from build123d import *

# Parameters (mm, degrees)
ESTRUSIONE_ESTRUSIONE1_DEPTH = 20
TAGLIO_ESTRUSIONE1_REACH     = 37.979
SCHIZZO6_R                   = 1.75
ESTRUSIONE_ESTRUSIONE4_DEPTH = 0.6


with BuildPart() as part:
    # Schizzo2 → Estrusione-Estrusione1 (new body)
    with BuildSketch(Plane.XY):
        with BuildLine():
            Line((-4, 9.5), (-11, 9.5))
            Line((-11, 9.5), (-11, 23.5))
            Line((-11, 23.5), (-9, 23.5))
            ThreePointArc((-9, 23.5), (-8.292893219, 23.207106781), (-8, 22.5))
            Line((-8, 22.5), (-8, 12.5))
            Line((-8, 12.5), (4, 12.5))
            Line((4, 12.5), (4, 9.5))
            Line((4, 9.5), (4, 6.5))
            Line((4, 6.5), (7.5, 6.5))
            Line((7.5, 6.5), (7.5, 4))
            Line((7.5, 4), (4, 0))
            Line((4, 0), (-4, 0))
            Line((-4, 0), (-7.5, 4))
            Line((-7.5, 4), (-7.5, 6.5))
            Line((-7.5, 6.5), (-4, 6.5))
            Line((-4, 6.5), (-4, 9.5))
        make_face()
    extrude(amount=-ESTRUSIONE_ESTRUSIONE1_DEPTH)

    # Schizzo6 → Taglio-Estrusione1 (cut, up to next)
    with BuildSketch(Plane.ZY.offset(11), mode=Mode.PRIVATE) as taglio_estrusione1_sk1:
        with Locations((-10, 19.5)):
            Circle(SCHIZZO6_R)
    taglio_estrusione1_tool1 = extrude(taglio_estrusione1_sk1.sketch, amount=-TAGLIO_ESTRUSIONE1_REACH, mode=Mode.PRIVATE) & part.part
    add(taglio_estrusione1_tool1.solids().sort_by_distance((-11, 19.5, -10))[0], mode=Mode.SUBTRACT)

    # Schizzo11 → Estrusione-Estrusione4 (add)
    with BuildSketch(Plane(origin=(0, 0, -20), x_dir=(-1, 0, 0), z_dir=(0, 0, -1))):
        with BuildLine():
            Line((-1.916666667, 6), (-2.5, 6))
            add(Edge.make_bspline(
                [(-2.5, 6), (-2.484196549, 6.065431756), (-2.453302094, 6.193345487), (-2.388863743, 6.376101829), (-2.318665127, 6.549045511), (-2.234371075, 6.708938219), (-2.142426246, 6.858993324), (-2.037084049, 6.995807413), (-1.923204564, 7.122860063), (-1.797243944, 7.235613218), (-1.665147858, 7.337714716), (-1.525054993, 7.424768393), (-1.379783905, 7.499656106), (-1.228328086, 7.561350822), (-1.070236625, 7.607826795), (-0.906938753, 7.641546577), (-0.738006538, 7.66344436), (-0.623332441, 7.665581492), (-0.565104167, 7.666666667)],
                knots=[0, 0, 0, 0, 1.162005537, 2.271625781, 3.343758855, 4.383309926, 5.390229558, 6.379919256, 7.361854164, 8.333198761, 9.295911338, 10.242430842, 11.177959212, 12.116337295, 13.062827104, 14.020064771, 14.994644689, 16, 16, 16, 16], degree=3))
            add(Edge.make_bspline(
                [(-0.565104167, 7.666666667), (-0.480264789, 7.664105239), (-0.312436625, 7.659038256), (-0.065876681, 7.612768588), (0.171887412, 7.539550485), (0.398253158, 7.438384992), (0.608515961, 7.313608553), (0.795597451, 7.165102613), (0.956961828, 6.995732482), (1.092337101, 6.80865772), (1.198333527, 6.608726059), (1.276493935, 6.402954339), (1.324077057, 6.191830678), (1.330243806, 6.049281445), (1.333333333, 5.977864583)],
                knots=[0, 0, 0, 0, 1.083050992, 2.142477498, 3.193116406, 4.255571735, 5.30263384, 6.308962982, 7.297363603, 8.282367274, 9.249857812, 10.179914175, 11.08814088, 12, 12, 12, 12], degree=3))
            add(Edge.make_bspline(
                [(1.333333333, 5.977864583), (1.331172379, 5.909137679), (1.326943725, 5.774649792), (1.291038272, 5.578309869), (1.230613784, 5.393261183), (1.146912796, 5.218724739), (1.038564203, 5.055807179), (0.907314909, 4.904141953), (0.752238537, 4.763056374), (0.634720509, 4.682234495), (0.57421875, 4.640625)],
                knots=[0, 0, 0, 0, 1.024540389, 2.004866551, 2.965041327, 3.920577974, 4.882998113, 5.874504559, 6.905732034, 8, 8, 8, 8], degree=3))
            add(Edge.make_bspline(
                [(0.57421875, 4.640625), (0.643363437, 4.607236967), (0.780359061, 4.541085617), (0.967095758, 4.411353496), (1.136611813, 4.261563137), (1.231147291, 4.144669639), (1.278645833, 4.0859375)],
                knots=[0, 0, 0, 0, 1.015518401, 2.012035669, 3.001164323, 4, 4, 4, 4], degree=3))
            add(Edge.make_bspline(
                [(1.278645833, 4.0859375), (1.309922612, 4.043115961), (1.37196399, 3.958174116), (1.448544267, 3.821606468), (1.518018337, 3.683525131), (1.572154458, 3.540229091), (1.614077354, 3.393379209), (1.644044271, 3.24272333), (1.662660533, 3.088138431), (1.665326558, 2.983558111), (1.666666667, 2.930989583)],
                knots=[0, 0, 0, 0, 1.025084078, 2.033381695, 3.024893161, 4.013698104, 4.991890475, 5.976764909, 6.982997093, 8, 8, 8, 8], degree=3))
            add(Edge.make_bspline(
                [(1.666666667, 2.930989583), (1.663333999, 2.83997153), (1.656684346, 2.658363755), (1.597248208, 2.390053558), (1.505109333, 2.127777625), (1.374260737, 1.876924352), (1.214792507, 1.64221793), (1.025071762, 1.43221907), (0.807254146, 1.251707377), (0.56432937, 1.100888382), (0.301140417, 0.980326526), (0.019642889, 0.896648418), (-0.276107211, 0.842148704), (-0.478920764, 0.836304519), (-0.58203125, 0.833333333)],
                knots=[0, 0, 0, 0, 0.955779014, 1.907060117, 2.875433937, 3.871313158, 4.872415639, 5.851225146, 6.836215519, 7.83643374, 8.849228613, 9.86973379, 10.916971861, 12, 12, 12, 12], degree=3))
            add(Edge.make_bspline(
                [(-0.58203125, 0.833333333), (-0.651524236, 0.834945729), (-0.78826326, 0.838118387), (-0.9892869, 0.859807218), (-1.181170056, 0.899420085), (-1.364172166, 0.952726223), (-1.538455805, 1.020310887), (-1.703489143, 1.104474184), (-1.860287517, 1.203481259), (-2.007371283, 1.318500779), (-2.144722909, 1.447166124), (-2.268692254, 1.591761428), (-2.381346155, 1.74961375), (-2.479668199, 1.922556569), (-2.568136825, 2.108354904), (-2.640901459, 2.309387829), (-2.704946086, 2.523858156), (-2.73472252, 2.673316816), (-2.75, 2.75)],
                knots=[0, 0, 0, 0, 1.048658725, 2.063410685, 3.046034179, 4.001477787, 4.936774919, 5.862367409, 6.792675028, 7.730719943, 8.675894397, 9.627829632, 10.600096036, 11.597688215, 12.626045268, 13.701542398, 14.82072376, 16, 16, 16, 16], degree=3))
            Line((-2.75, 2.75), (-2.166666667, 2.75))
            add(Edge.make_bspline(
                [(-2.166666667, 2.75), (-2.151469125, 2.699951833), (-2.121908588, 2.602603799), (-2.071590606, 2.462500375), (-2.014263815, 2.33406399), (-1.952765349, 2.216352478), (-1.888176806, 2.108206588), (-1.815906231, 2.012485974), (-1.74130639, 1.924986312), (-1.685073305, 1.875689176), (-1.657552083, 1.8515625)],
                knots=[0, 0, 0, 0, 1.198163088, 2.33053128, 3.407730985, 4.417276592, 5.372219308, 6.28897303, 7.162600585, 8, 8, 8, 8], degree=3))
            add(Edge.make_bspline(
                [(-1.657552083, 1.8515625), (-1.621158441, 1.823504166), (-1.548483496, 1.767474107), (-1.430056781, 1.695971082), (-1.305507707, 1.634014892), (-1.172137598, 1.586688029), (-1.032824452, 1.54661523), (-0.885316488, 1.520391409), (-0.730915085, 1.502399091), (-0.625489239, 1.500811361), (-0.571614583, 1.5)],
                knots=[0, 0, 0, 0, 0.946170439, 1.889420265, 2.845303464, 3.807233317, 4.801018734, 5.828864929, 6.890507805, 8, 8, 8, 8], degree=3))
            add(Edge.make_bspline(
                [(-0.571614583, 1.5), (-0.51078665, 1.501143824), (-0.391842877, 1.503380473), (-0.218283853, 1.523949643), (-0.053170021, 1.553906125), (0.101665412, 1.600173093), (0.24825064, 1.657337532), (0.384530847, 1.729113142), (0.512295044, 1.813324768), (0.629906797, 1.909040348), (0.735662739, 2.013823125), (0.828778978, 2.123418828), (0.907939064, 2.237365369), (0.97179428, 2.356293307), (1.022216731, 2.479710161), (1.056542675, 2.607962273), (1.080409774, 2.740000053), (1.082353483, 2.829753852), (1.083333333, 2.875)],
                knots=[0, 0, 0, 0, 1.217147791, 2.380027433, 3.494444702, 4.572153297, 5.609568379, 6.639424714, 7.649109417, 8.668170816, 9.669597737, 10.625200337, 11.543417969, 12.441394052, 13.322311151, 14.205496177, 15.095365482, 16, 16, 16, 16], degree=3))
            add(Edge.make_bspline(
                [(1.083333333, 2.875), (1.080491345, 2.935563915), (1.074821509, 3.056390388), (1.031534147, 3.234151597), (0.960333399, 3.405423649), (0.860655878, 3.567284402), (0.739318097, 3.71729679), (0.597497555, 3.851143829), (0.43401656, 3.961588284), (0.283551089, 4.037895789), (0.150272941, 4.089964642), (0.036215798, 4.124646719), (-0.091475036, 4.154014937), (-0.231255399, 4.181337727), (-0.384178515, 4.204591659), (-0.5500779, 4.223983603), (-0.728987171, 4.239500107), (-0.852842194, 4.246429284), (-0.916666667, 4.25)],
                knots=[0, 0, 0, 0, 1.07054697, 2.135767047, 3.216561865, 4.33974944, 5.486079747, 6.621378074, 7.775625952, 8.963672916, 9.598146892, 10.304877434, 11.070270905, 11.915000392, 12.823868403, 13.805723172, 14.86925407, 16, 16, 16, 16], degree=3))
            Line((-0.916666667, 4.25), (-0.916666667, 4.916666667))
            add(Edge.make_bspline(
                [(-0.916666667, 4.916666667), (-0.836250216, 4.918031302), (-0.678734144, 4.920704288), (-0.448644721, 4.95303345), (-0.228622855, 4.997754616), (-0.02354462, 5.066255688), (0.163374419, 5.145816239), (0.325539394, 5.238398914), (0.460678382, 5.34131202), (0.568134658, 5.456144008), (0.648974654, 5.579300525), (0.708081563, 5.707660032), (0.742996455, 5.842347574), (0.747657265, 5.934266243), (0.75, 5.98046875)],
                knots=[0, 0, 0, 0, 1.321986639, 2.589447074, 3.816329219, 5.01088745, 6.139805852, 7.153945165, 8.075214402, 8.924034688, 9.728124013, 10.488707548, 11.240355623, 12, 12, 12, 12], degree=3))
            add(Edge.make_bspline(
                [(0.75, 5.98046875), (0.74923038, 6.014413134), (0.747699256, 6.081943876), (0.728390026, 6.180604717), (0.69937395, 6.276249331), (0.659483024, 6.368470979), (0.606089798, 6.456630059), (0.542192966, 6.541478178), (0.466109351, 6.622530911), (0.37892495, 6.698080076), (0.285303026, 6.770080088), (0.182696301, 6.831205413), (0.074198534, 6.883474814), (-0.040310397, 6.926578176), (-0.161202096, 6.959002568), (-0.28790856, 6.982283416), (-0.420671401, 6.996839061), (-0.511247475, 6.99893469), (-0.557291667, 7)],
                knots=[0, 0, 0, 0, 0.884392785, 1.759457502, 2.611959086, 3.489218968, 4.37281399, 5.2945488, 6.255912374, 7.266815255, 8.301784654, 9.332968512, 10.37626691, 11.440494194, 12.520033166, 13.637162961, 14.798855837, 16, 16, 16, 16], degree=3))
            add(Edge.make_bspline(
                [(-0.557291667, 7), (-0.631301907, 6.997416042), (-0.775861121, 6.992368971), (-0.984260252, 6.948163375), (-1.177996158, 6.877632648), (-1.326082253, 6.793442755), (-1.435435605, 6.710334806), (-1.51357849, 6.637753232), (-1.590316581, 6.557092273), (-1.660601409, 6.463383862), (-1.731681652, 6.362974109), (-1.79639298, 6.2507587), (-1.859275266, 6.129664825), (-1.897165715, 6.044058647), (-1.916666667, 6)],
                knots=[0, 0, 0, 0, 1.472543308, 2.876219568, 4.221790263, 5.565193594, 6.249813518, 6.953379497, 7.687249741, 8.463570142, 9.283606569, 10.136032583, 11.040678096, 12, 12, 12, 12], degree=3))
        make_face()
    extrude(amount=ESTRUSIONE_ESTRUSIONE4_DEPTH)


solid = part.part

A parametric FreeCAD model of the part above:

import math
import FreeCAD as App
import Part
import Sketcher

V = App.Vector
Q = App.Units.Quantity

doc = App.newDocument("Part")
body = doc.addObject("PartDesign::Body", "Body")

# Sketch on XY plane
sketch1 = body.newObject("Sketcher::SketchObject", "Sketch")
sketch1.AttachmentSupport = (doc.getObject("XY_Plane"), [""])
sketch1.MapMode = "FlatFace"
sketch1.addGeometry([
    Part.LineSegment(V(-11, 9.5, 0), V(-4, 9.5, 0)),  # 0
    Part.LineSegment(V(-4, 9.5, 0), V(-4, 6.5, 0)),  # 1
    Part.LineSegment(V(-4, 6.5, 0), V(-7.5, 6.5, 0)),  # 2
    Part.LineSegment(V(-7.5, 6.5, 0), V(-7.5, 4, 0)),  # 3
    Part.LineSegment(V(-7.5, 4, 0), V(-4, 0, 0)),  # 4
    Part.LineSegment(V(-4, 0, 0), V(4, 0, 0)),  # 5
    Part.LineSegment(V(4, 0, 0), V(7.5, 4, 0)),  # 6
    Part.LineSegment(V(7.5, 4, 0), V(7.5, 6.5, 0)),  # 7
    Part.LineSegment(V(7.5, 6.5, 0), V(4, 6.5, 0)),  # 8
    Part.LineSegment(V(4, 6.5, 0), V(4, 12.5, 0)),  # 9
    Part.LineSegment(V(4, 12.5, 0), V(-8, 12.5, 0)),  # 10
    Part.LineSegment(V(-8, 12.5, 0), V(-8, 22.5, 0)),  # 11
    Part.ArcOfCircle(Part.Circle(V(-9, 22.5, 0), V(0, 0, 1), 1), math.radians(0), math.radians(90)),  # 12
    Part.LineSegment(V(-9, 23.5, 0), V(-11, 23.5, 0)),  # 13
    Part.LineSegment(V(-11, 23.5, 0), V(-11, 9.5, 0)),  # 14
], False)
sketch1.addConstraint([
    Sketcher.Constraint("Coincident", 0, 2, 1, 1),
    Sketcher.Constraint("Coincident", 1, 2, 2, 1),
    Sketcher.Constraint("Coincident", 2, 2, 3, 1),
    Sketcher.Constraint("Coincident", 3, 2, 4, 1),
    Sketcher.Constraint("Coincident", 4, 2, 5, 1),
    Sketcher.Constraint("Coincident", 5, 2, 6, 1),
    Sketcher.Constraint("Coincident", 6, 2, 7, 1),
    Sketcher.Constraint("Coincident", 7, 2, 8, 1),
    Sketcher.Constraint("Coincident", 8, 2, 9, 1),
    Sketcher.Constraint("Coincident", 9, 2, 10, 1),
    Sketcher.Constraint("Coincident", 10, 2, 11, 1),
    Sketcher.Constraint("Tangent", 11, 2, 12, 1),
    Sketcher.Constraint("Tangent", 12, 2, 13, 1),
    Sketcher.Constraint("Coincident", 13, 2, 14, 1),
    Sketcher.Constraint("Coincident", 14, 2, 0, 1),
    Sketcher.Constraint("Horizontal", 0),
    Sketcher.Constraint("Vertical", 1),
    Sketcher.Constraint("Horizontal", 2),
    Sketcher.Constraint("Vertical", 3),
    Sketcher.Constraint("Horizontal", 5),
    Sketcher.Constraint("Vertical", 7),
    Sketcher.Constraint("Horizontal", 8),
    Sketcher.Constraint("Vertical", 9),
    Sketcher.Constraint("Horizontal", 10),
    Sketcher.Constraint("Vertical", 11),
    Sketcher.Constraint("Horizontal", 13),
    Sketcher.Constraint("Vertical", 14),
    Sketcher.Constraint("Symmetric", 4, 2, 5, 2, -1, 1),
    Sketcher.Constraint("Symmetric", 3, 2, 6, 2, -2),
    Sketcher.Constraint("Symmetric", 1, 2, 8, 2, -2),
    Sketcher.Constraint("Vertical", 1, 2, 4, 2),
    Sketcher.Constraint("Radius", 12, Q("1 mm")),
    Sketcher.Constraint("DistanceX", 0, 1, 0, 2, Q("7 mm")),
    Sketcher.Constraint("DistanceX", 5, 1, 5, 2, Q("8 mm")),
    Sketcher.Constraint("DistanceX", 10, 2, 10, 1, Q("12 mm")),
    Sketcher.Constraint("DistanceY", 1, 2, 1, 1, Q("3 mm")),
    Sketcher.Constraint("DistanceY", 9, 1, 9, 2, Q("6 mm")),
    Sketcher.Constraint("DistanceY", 11, 1, 11, 2, Q("10 mm")),
    Sketcher.Constraint("DistanceX", 2, 2, 2, 1, Q("3.5 mm")),
    Sketcher.Constraint("DistanceY", 3, 2, 3, 1, Q("2.5 mm")),
    Sketcher.Constraint("DistanceY", -1, 1, 3, 2, Q("4 mm")),
])
pad1 = body.newObject("PartDesign::Pad", "Pad")
pad1.Profile = sketch1
pad1.Length = 20
pad1.Reversed = True

# Sketch on YZ plane
sketch2 = body.newObject("Sketcher::SketchObject", "Sketch001")
sketch2.AttachmentSupport = (doc.getObject("YZ_Plane"), [""])
sketch2.MapMode = "FlatFace"
sketch2.AttachmentOffset = App.Placement(V(0, 0, -11), App.Rotation())
sketch2.addGeometry(Part.Circle(V(19.5, -10, 0), V(0, 0, 1), 1.8), False)
sketch2.addConstraint([
    Sketcher.Constraint("Diameter", 0, Q("3.5 mm")),
    Sketcher.Constraint("DistanceY", 0, 3, -1, 1, Q("10 mm")),
    Sketcher.Constraint("DistanceX", -1, 1, 0, 3, Q("19.5 mm")),
])
pocket1 = body.newObject("PartDesign::Pocket", "Pocket")
pocket1.Profile = sketch2
pocket1.Type = "UpToFirst"
pocket1.Reversed = True

# Sketch on XY plane
sketch3 = body.newObject("Sketcher::SketchObject", "Sketch002")
sketch3.AttachmentSupport = (doc.getObject("XY_Plane"), [""])
sketch3.MapMode = "FlatFace"
sketch3.AttachmentOffset = App.Placement(V(0, 0, -20), App.Rotation())
sketch3.addGeometry([
    Part.LineSegment(V(2.5, 6, 0), V(1.916667, 6, 0)),  # 0
    Part.BSplineCurve([V(0.557292, 7, 0), V(0.631302, 6.997416, 0), V(0.775861, 6.992369, 0), V(0.98426, 6.948163, 0), V(1.177996, 6.877633, 0), V(1.326082, 6.793443, 0), V(1.435436, 6.710335, 0), V(1.513578, 6.637753, 0), V(1.590317, 6.557092, 0), V(1.660601, 6.463384, 0), V(1.731682, 6.362974, 0), V(1.796393, 6.250759, 0), V(1.859275, 6.129665, 0), V(1.897166, 6.044059, 0), V(1.916667, 6, 0)], [4, 1, 1, 1, 1, 1, 1, 1, 1, 1, 1, 1, 4], [0, 1.472543308, 2.876219568, 4.221790263, 5.565193594, 6.249813518, 6.953379497, 7.687249741, 8.463570142, 9.283606569, 10.136032583, 11.040678096, 12], False, 3, [1, 1, 1, 1, 1, 1, 1, 1, 1, 1, 1, 1, 1, 1, 1], False),  # 1
    Part.BSplineCurve([V(-0.75, 5.980469, 0), V(-0.74923, 6.014413, 0), V(-0.747699, 6.081944, 0), V(-0.72839, 6.180605, 0), V(-0.699374, 6.276249, 0), V(-0.659483, 6.368471, 0), V(-0.60609, 6.45663, 0), V(-0.542193, 6.541478, 0), V(-0.466109, 6.622531, 0), V(-0.378925, 6.69808, 0), V(-0.285303, 6.77008, 0), V(-0.182696, 6.831205, 0), V(-0.074199, 6.883475, 0), V(0.04031, 6.926578, 0), V(0.161202, 6.959003, 0), V(0.287909, 6.982283, 0), V(0.420671, 6.996839, 0), V(0.511247, 6.998935, 0), V(0.557292, 7, 0)], [4, 1, 1, 1, 1, 1, 1, 1, 1, 1, 1, 1, 1, 1, 1, 1, 4], [0, 0.884392785, 1.759457502, 2.611959086, 3.489218968, 4.37281399, 5.2945488, 6.255912374, 7.266815255, 8.301784654, 9.332968512, 10.37626691, 11.440494194, 12.520033166, 13.637162961, 14.798855837, 16], False, 3, [1, 1, 1, 1, 1, 1, 1, 1, 1, 1, 1, 1, 1, 1, 1, 1, 1, 1, 1], False),  # 2
    Part.BSplineCurve([V(0.916667, 4.916667, 0), V(0.83625, 4.918031, 0), V(0.678734, 4.920704, 0), V(0.448645, 4.953033, 0), V(0.228623, 4.997755, 0), V(0.023545, 5.066256, 0), V(-0.163374, 5.145816, 0), V(-0.325539, 5.238399, 0), V(-0.460678, 5.341312, 0), V(-0.568135, 5.456144, 0), V(-0.648975, 5.579301, 0), V(-0.708082, 5.70766, 0), V(-0.742996, 5.842348, 0), V(-0.747657, 5.934266, 0), V(-0.75, 5.980469, 0)], [4, 1, 1, 1, 1, 1, 1, 1, 1, 1, 1, 1, 4], [0, 1.321986639, 2.589447074, 3.816329219, 5.01088745, 6.139805852, 7.153945165, 8.075214402, 8.924034688, 9.728124013, 10.488707548, 11.240355623, 12], False, 3, [1, 1, 1, 1, 1, 1, 1, 1, 1, 1, 1, 1, 1, 1, 1], False),  # 3
    Part.LineSegment(V(0.916667, 4.916667, 0), V(0.916667, 4.25, 0)),  # 4
    Part.BSplineCurve([V(-1.083333, 2.875, 0), V(-1.080491, 2.935564, 0), V(-1.074822, 3.05639, 0), V(-1.031534, 3.234152, 0), V(-0.960333, 3.405424, 0), V(-0.860656, 3.567284, 0), V(-0.739318, 3.717297, 0), V(-0.597498, 3.851144, 0), V(-0.434017, 3.961588, 0), V(-0.283551, 4.037896, 0), V(-0.150273, 4.089965, 0), V(-0.036216, 4.124647, 0), V(0.091475, 4.154015, 0), V(0.231255, 4.181338, 0), V(0.384179, 4.204592, 0), V(0.550078, 4.223984, 0), V(0.728987, 4.2395, 0), V(0.852842, 4.246429, 0), V(0.916667, 4.25, 0)], [4, 1, 1, 1, 1, 1, 1, 1, 1, 1, 1, 1, 1, 1, 1, 1, 4], [0, 1.07054697, 2.135767047, 3.216561865, 4.33974944, 5.486079747, 6.621378074, 7.775625952, 8.963672916, 9.598146892, 10.304877434, 11.070270905, 11.915000392, 12.823868403, 13.805723172, 14.86925407, 16], False, 3, [1, 1, 1, 1, 1, 1, 1, 1, 1, 1, 1, 1, 1, 1, 1, 1, 1, 1, 1], False),  # 5
    Part.BSplineCurve([V(0.571615, 1.5, 0), V(0.510787, 1.501144, 0), V(0.391843, 1.50338, 0), V(0.218284, 1.52395, 0), V(0.05317, 1.553906, 0), V(-0.101665, 1.600173, 0), V(-0.248251, 1.657338, 0), V(-0.384531, 1.729113, 0), V(-0.512295, 1.813325, 0), V(-0.629907, 1.90904, 0), V(-0.735663, 2.013823, 0), V(-0.828779, 2.123419, 0), V(-0.907939, 2.237365, 0), V(-0.971794, 2.356293, 0), V(-1.022217, 2.47971, 0), V(-1.056543, 2.607962, 0), V(-1.08041, 2.74, 0), V(-1.082353, 2.829754, 0), V(-1.083333, 2.875, 0)], [4, 1, 1, 1, 1, 1, 1, 1, 1, 1, 1, 1, 1, 1, 1, 1, 4], [0, 1.217147791, 2.380027433, 3.494444702, 4.572153297, 5.609568379, 6.639424714, 7.649109417, 8.668170816, 9.669597737, 10.625200337, 11.543417969, 12.441394052, 13.322311151, 14.205496177, 15.095365482, 16], False, 3, [1, 1, 1, 1, 1, 1, 1, 1, 1, 1, 1, 1, 1, 1, 1, 1, 1, 1, 1], False),  # 6
    Part.BSplineCurve([V(1.657552, 1.851562, 0), V(1.621158, 1.823504, 0), V(1.548483, 1.767474, 0), V(1.430057, 1.695971, 0), V(1.305508, 1.634015, 0), V(1.172138, 1.586688, 0), V(1.032824, 1.546615, 0), V(0.885316, 1.520391, 0), V(0.730915, 1.502399, 0), V(0.625489, 1.500811, 0), V(0.571615, 1.5, 0)], [4, 1, 1, 1, 1, 1, 1, 1, 4], [0, 0.946170439, 1.889420265, 2.845303464, 3.807233317, 4.801018734, 5.828864929, 6.890507805, 8], False, 3, [1, 1, 1, 1, 1, 1, 1, 1, 1, 1, 1], False),  # 7
    Part.BSplineCurve([V(2.166667, 2.75, 0), V(2.151469, 2.699952, 0), V(2.121909, 2.602604, 0), V(2.071591, 2.4625, 0), V(2.014264, 2.334064, 0), V(1.952765, 2.216352, 0), V(1.888177, 2.108207, 0), V(1.815906, 2.012486, 0), V(1.741306, 1.924986, 0), V(1.685073, 1.875689, 0), V(1.657552, 1.851562, 0)], [4, 1, 1, 1, 1, 1, 1, 1, 4], [0, 1.198163088, 2.33053128, 3.407730985, 4.417276592, 5.372219308, 6.28897303, 7.162600585, 8], False, 3, [1, 1, 1, 1, 1, 1, 1, 1, 1, 1, 1], False),  # 8
    Part.LineSegment(V(2.166667, 2.75, 0), V(2.75, 2.75, 0)),  # 9
    Part.BSplineCurve([V(0.582031, 0.833333, 0), V(0.651524, 0.834946, 0), V(0.788263, 0.838118, 0), V(0.989287, 0.859807, 0), V(1.18117, 0.89942, 0), V(1.364172, 0.952726, 0), V(1.538456, 1.020311, 0), V(1.703489, 1.104474, 0), V(1.860288, 1.203481, 0), V(2.007371, 1.318501, 0), V(2.144723, 1.447166, 0), V(2.268692, 1.591761, 0), V(2.381346, 1.749614, 0), V(2.479668, 1.922557, 0), V(2.568137, 2.108355, 0), V(2.640901, 2.309388, 0), V(2.704946, 2.523858, 0), V(2.734723, 2.673317, 0), V(2.75, 2.75, 0)], [4, 1, 1, 1, 1, 1, 1, 1, 1, 1, 1, 1, 1, 1, 1, 1, 4], [0, 1.048658725, 2.063410685, 3.046034179, 4.001477787, 4.936774919, 5.862367409, 6.792675028, 7.730719943, 8.675894397, 9.627829632, 10.600096036, 11.597688215, 12.626045268, 13.701542398, 14.82072376, 16], False, 3, [1, 1, 1, 1, 1, 1, 1, 1, 1, 1, 1, 1, 1, 1, 1, 1, 1, 1, 1], False),  # 10
    Part.BSplineCurve([V(-1.666667, 2.93099, 0), V(-1.663334, 2.839972, 0), V(-1.656684, 2.658364, 0), V(-1.597248, 2.390054, 0), V(-1.505109, 2.127778, 0), V(-1.374261, 1.876924, 0), V(-1.214793, 1.642218, 0), V(-1.025072, 1.432219, 0), V(-0.807254, 1.251707, 0), V(-0.564329, 1.100888, 0), V(-0.30114, 0.980327, 0), V(-0.019643, 0.896648, 0), V(0.276107, 0.842149, 0), V(0.478921, 0.836305, 0), V(0.582031, 0.833333, 0)], [4, 1, 1, 1, 1, 1, 1, 1, 1, 1, 1, 1, 4], [0, 0.955779014, 1.907060117, 2.875433937, 3.871313158, 4.872415639, 5.851225146, 6.836215519, 7.83643374, 8.849228613, 9.86973379, 10.916971861, 12], False, 3, [1, 1, 1, 1, 1, 1, 1, 1, 1, 1, 1, 1, 1, 1, 1], False),  # 11
    Part.BSplineCurve([V(-1.278646, 4.085938, 0), V(-1.309923, 4.043116, 0), V(-1.371964, 3.958174, 0), V(-1.448544, 3.821606, 0), V(-1.518018, 3.683525, 0), V(-1.572154, 3.540229, 0), V(-1.614077, 3.393379, 0), V(-1.644044, 3.242723, 0), V(-1.662661, 3.088138, 0), V(-1.665327, 2.983558, 0), V(-1.666667, 2.93099, 0)], [4, 1, 1, 1, 1, 1, 1, 1, 4], [0, 1.025084078, 2.033381695, 3.024893161, 4.013698104, 4.991890475, 5.976764909, 6.982997093, 8], False, 3, [1, 1, 1, 1, 1, 1, 1, 1, 1, 1, 1], False),  # 12
    Part.BSplineCurve([V(-0.574219, 4.640625, 0), V(-0.643363, 4.607237, 0), V(-0.780359, 4.541086, 0), V(-0.967096, 4.411353, 0), V(-1.136612, 4.261563, 0), V(-1.231147, 4.14467, 0), V(-1.278646, 4.085938, 0)], [4, 1, 1, 1, 4], [0, 1.015518401, 2.012035669, 3.001164323, 4], False, 3, [1, 1, 1, 1, 1, 1, 1], False),  # 13
    Part.BSplineCurve([V(-1.333333, 5.977865, 0), V(-1.331172, 5.909138, 0), V(-1.326944, 5.77465, 0), V(-1.291038, 5.57831, 0), V(-1.230614, 5.393261, 0), V(-1.146913, 5.218725, 0), V(-1.038564, 5.055807, 0), V(-0.907315, 4.904142, 0), V(-0.752239, 4.763056, 0), V(-0.634721, 4.682234, 0), V(-0.574219, 4.640625, 0)], [4, 1, 1, 1, 1, 1, 1, 1, 4], [0, 1.024540389, 2.004866551, 2.965041327, 3.920577974, 4.882998113, 5.874504559, 6.905732034, 8], False, 3, [1, 1, 1, 1, 1, 1, 1, 1, 1, 1, 1], False),  # 14
    Part.BSplineCurve([V(0.565104, 7.666667, 0), V(0.480265, 7.664105, 0), V(0.312437, 7.659038, 0), V(0.065877, 7.612769, 0), V(-0.171887, 7.53955, 0), V(-0.398253, 7.438385, 0), V(-0.608516, 7.313609, 0), V(-0.795597, 7.165103, 0), V(-0.956962, 6.995732, 0), V(-1.092337, 6.808658, 0), V(-1.198334, 6.608726, 0), V(-1.276494, 6.402954, 0), V(-1.324077, 6.191831, 0), V(-1.330244, 6.049281, 0), V(-1.333333, 5.977865, 0)], [4, 1, 1, 1, 1, 1, 1, 1, 1, 1, 1, 1, 4], [0, 1.083050992, 2.142477498, 3.193116406, 4.255571735, 5.30263384, 6.308962982, 7.297363603, 8.282367274, 9.249857812, 10.179914175, 11.08814088, 12], False, 3, [1, 1, 1, 1, 1, 1, 1, 1, 1, 1, 1, 1, 1, 1, 1], False),  # 15
    Part.BSplineCurve([V(2.5, 6, 0), V(2.484197, 6.065432, 0), V(2.453302, 6.193345, 0), V(2.388864, 6.376102, 0), V(2.318665, 6.549046, 0), V(2.234371, 6.708938, 0), V(2.142426, 6.858993, 0), V(2.037084, 6.995807, 0), V(1.923205, 7.12286, 0), V(1.797244, 7.235613, 0), V(1.665148, 7.337715, 0), V(1.525055, 7.424768, 0), V(1.379784, 7.499656, 0), V(1.228328, 7.561351, 0), V(1.070237, 7.607827, 0), V(0.906939, 7.641547, 0), V(0.738007, 7.663444, 0), V(0.623332, 7.665581, 0), V(0.565104, 7.666667, 0)], [4, 1, 1, 1, 1, 1, 1, 1, 1, 1, 1, 1, 1, 1, 1, 1, 4], [0, 1.162005537, 2.271625781, 3.343758855, 4.383309926, 5.390229558, 6.379919256, 7.361854164, 8.333198761, 9.295911338, 10.242430842, 11.177959212, 12.116337295, 13.062827104, 14.020064771, 14.994644689, 16], False, 3, [1, 1, 1, 1, 1, 1, 1, 1, 1, 1, 1, 1, 1, 1, 1, 1, 1, 1, 1], False),  # 16
], False)
sketch3.addConstraint([
    Sketcher.Constraint("Block", 1),
    Sketcher.Constraint("Block", 2),
    Sketcher.Constraint("Block", 3),
    Sketcher.Constraint("Block", 5),
    Sketcher.Constraint("Block", 6),
    Sketcher.Constraint("Block", 7),
    Sketcher.Constraint("Block", 8),
    Sketcher.Constraint("Block", 10),
    Sketcher.Constraint("Block", 11),
    Sketcher.Constraint("Block", 12),
    Sketcher.Constraint("Block", 13),
    Sketcher.Constraint("Block", 14),
    Sketcher.Constraint("Block", 15),
    Sketcher.Constraint("Block", 16),
    Sketcher.Constraint("Coincident", 0, 2, 1, 2),
    Sketcher.Constraint("Coincident", 3, 1, 4, 1),
    Sketcher.Constraint("Coincident", 4, 2, 5, 2),
    Sketcher.Constraint("Coincident", 8, 1, 9, 1),
    Sketcher.Constraint("Coincident", 9, 2, 10, 2),
    Sketcher.Constraint("Coincident", 16, 1, 0, 1),
])
pad2 = body.newObject("PartDesign::Pad", "Pad001")
pad2.Profile = sketch3
pad2.Length = 0.6
pad2.Reversed = True

doc.recompute()
